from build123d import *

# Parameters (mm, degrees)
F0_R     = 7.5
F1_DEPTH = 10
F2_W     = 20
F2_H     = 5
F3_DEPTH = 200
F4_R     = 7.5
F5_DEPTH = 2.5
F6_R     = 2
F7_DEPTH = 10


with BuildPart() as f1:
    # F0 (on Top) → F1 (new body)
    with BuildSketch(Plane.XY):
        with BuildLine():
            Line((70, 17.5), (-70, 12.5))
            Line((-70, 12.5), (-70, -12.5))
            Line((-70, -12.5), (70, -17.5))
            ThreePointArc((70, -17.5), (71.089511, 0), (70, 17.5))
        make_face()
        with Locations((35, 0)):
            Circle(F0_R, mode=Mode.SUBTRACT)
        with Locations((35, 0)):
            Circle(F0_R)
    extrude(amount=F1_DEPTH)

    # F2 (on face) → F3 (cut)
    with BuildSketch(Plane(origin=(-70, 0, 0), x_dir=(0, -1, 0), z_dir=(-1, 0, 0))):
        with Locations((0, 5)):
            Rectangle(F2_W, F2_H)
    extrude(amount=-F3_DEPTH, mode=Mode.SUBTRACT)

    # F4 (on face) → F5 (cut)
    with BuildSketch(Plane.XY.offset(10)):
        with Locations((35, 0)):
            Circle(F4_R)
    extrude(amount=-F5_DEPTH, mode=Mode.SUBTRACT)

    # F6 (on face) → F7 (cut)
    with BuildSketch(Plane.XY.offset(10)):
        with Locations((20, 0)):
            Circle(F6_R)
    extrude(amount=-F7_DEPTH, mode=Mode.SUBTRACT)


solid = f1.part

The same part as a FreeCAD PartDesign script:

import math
import FreeCAD as App
import Part
import Sketcher

V = App.Vector
Q = App.Units.Quantity


def add_polygon(sketch, points):
    """Adds a closed chain of lines whose ends are joined by coincident constraints."""
    first, n = sketch.GeometryCount, len(points)
    for a, b in zip(points, points[1:] + points[:1]):
        sketch.addGeometry(Part.LineSegment(App.Vector(*a, 0), App.Vector(*b, 0)), False)
    for i in range(n):
        sketch.addConstraint(Sketcher.Constraint("Coincident", first + i, 2, first + (i + 1) % n, 1))

doc = App.newDocument("Part")
params = doc.addObject("Spreadsheet::Sheet", "Params")
for row, (alias, value) in enumerate([
    ("sketch1_height", "25 mm"),
    ("pad1_length", "10 mm"),
    ("sketch2_width", "20 mm"),
    ("sketch2_height", "5 mm"),
    ("pocket1_length", "200 mm"),
    ("sketch3_diameter", "15 mm"),
    ("pocket2_length", "2.5 mm"),
    ("sketch4_diameter", "4 mm"),
    ("pocket3_length", "10 mm"),
], start=1):
    params.set(f"A{row}", alias)
    params.set(f"B{row}", "=" + value)
    params.setAlias(f"B{row}", alias)

body = doc.addObject("PartDesign::Body", "Body")

sketch1 = body.newObject("Sketcher::SketchObject", "Sketch")
sketch1.AttachmentSupport = (doc.getObject("XY_Plane"), [""])
sketch1.MapMode = "FlatFace"
sketch1.addGeometry(Part.LineSegment(V(70, 18, 0), V(-70, 12, 0)), False)
sketch1.addGeometry(Part.LineSegment(V(-70, 12, 0), V(-70, -12, 0)), False)
sketch1.addGeometry(Part.LineSegment(V(-70, -12, 0), V(70, -18, 0)), False)
sketch1.addGeometry(Part.ArcOfCircle(Part.Circle(V(-70, 0, 0), V(0, 0, 1), 141), math.radians(-7.13), math.radians(7.13)), False)
sketch1.addConstraint(Sketcher.Constraint("Coincident", 0, 2, 1, 1))
sketch1.addConstraint(Sketcher.Constraint("Coincident", 1, 2, 2, 1))
sketch1.addConstraint(Sketcher.Constraint("Coincident", 2, 2, 3, 1))
sketch1.addConstraint(Sketcher.Constraint("Coincident", 3, 2, 0, 1))
sketch1.addConstraint(Sketcher.Constraint("Vertical", 1))
sketch1.addConstraint(Sketcher.Constraint("Symmetric", 2, 2, 3, 2, -1))
sketch1.addConstraint(Sketcher.Constraint("Equal", 0, 2))
sketch1.addConstraint(Sketcher.Constraint("DistanceY", 1, 2, 1, 1, Q("25 mm")))
sketch1.addConstraint(Sketcher.Constraint("DistanceX", 0, 2, -1, 1, Q("70 mm")))
sketch1.addConstraint(Sketcher.Constraint("DistanceX", -1, 1, 2, 2, Q("70 mm")))
sketch1.addConstraint(Sketcher.Constraint("DistanceY", 2, 2, 1, 2, Q("5 mm")))
sketch1.addConstraint(Sketcher.Constraint("Radius", 3, Q("141.089459 mm")))
sketch1.setExpression("Constraints[7]", "Params.sketch1_height")
pad1 = body.newObject("PartDesign::Pad", "Pad")
pad1.Profile = sketch1
pad1.setExpression("Length", "Params.pad1_length")

sketch2 = body.newObject("Sketcher::SketchObject", "Sketch001")
sketch2.AttachmentSupport = (doc.getObject("YZ_Plane"), [""])
sketch2.MapMode = "FlatFace"
sketch2.AttachmentOffset = App.Placement(V(0, 0, -70), App.Rotation())
add_polygon(sketch2, [(10, 8), (10, 2), (-10, 2), (-10, 8)])
sketch2.addConstraint(Sketcher.Constraint("Vertical", 0))
sketch2.addConstraint(Sketcher.Constraint("Horizontal", 1))
sketch2.addConstraint(Sketcher.Constraint("Vertical", 2))
sketch2.addConstraint(Sketcher.Constraint("Horizontal", 3))
sketch2.addConstraint(Sketcher.Constraint("DistanceX", 1, 2, 1, 1, Q("20 mm")))
sketch2.addConstraint(Sketcher.Constraint("DistanceY", 0, 2, 0, 1, Q("5 mm")))
sketch2.addConstraint(Sketcher.Constraint("DistanceX", -1, 1, 0, 2, Q("10 mm")))
sketch2.addConstraint(Sketcher.Constraint("DistanceY", -1, 1, 0, 2, Q("2.5 mm")))
sketch2.setExpression("Constraints[8]", "Params.sketch2_width")
sketch2.setExpression("Constraints[9]", "Params.sketch2_height")
pocket1 = body.newObject("PartDesign::Pocket", "Pocket")
pocket1.Profile = sketch2
pocket1.setExpression("Length", "Params.pocket1_length")
pocket1.Reversed = True

sketch3 = body.newObject("Sketcher::SketchObject", "Sketch002")
sketch3.AttachmentSupport = (doc.getObject("XY_Plane"), [""])
sketch3.MapMode = "FlatFace"
sketch3.AttachmentOffset = App.Placement(V(0, 0, 10), App.Rotation())
sketch3.addGeometry(Part.Circle(V(35, 0, 0), V(0, 0, 1), 8), False)
sketch3.addConstraint(Sketcher.Constraint("PointOnObject", 0, 3, -1))
sketch3.addConstraint(Sketcher.Constraint("Diameter", 0, Q("15 mm")))
sketch3.addConstraint(Sketcher.Constraint("DistanceX", -1, 1, 0, 3, Q("35 mm")))
sketch3.setExpression("Constraints[1]", "Params.sketch3_diameter")
pocket2 = body.newObject("PartDesign::Pocket", "Pocket001")
pocket2.Profile = sketch3
pocket2.setExpression("Length", "Params.pocket2_length")

sketch4 = body.newObject("Sketcher::SketchObject", "Sketch003")
sketch4.AttachmentSupport = (doc.getObject("XY_Plane"), [""])
sketch4.MapMode = "FlatFace"
sketch4.AttachmentOffset = App.Placement(V(0, 0, 10), App.Rotation())
sketch4.addGeometry(Part.Circle(V(20, 0, 0), V(0, 0, 1), 2), False)
sketch4.addConstraint(Sketcher.Constraint("PointOnObject", 0, 3, -1))
sketch4.addConstraint(Sketcher.Constraint("Diameter", 0, Q("4 mm")))
sketch4.addConstraint(Sketcher.Constraint("DistanceX", -1, 1, 0, 3, Q("20 mm")))
sketch4.setExpression("Constraints[1]", "Params.sketch4_diameter")
pocket3 = body.newObject("PartDesign::Pocket", "Pocket002")
pocket3.Profile = sketch4
pocket3.setExpression("Length", "Params.pocket3_length")

doc.recompute()
